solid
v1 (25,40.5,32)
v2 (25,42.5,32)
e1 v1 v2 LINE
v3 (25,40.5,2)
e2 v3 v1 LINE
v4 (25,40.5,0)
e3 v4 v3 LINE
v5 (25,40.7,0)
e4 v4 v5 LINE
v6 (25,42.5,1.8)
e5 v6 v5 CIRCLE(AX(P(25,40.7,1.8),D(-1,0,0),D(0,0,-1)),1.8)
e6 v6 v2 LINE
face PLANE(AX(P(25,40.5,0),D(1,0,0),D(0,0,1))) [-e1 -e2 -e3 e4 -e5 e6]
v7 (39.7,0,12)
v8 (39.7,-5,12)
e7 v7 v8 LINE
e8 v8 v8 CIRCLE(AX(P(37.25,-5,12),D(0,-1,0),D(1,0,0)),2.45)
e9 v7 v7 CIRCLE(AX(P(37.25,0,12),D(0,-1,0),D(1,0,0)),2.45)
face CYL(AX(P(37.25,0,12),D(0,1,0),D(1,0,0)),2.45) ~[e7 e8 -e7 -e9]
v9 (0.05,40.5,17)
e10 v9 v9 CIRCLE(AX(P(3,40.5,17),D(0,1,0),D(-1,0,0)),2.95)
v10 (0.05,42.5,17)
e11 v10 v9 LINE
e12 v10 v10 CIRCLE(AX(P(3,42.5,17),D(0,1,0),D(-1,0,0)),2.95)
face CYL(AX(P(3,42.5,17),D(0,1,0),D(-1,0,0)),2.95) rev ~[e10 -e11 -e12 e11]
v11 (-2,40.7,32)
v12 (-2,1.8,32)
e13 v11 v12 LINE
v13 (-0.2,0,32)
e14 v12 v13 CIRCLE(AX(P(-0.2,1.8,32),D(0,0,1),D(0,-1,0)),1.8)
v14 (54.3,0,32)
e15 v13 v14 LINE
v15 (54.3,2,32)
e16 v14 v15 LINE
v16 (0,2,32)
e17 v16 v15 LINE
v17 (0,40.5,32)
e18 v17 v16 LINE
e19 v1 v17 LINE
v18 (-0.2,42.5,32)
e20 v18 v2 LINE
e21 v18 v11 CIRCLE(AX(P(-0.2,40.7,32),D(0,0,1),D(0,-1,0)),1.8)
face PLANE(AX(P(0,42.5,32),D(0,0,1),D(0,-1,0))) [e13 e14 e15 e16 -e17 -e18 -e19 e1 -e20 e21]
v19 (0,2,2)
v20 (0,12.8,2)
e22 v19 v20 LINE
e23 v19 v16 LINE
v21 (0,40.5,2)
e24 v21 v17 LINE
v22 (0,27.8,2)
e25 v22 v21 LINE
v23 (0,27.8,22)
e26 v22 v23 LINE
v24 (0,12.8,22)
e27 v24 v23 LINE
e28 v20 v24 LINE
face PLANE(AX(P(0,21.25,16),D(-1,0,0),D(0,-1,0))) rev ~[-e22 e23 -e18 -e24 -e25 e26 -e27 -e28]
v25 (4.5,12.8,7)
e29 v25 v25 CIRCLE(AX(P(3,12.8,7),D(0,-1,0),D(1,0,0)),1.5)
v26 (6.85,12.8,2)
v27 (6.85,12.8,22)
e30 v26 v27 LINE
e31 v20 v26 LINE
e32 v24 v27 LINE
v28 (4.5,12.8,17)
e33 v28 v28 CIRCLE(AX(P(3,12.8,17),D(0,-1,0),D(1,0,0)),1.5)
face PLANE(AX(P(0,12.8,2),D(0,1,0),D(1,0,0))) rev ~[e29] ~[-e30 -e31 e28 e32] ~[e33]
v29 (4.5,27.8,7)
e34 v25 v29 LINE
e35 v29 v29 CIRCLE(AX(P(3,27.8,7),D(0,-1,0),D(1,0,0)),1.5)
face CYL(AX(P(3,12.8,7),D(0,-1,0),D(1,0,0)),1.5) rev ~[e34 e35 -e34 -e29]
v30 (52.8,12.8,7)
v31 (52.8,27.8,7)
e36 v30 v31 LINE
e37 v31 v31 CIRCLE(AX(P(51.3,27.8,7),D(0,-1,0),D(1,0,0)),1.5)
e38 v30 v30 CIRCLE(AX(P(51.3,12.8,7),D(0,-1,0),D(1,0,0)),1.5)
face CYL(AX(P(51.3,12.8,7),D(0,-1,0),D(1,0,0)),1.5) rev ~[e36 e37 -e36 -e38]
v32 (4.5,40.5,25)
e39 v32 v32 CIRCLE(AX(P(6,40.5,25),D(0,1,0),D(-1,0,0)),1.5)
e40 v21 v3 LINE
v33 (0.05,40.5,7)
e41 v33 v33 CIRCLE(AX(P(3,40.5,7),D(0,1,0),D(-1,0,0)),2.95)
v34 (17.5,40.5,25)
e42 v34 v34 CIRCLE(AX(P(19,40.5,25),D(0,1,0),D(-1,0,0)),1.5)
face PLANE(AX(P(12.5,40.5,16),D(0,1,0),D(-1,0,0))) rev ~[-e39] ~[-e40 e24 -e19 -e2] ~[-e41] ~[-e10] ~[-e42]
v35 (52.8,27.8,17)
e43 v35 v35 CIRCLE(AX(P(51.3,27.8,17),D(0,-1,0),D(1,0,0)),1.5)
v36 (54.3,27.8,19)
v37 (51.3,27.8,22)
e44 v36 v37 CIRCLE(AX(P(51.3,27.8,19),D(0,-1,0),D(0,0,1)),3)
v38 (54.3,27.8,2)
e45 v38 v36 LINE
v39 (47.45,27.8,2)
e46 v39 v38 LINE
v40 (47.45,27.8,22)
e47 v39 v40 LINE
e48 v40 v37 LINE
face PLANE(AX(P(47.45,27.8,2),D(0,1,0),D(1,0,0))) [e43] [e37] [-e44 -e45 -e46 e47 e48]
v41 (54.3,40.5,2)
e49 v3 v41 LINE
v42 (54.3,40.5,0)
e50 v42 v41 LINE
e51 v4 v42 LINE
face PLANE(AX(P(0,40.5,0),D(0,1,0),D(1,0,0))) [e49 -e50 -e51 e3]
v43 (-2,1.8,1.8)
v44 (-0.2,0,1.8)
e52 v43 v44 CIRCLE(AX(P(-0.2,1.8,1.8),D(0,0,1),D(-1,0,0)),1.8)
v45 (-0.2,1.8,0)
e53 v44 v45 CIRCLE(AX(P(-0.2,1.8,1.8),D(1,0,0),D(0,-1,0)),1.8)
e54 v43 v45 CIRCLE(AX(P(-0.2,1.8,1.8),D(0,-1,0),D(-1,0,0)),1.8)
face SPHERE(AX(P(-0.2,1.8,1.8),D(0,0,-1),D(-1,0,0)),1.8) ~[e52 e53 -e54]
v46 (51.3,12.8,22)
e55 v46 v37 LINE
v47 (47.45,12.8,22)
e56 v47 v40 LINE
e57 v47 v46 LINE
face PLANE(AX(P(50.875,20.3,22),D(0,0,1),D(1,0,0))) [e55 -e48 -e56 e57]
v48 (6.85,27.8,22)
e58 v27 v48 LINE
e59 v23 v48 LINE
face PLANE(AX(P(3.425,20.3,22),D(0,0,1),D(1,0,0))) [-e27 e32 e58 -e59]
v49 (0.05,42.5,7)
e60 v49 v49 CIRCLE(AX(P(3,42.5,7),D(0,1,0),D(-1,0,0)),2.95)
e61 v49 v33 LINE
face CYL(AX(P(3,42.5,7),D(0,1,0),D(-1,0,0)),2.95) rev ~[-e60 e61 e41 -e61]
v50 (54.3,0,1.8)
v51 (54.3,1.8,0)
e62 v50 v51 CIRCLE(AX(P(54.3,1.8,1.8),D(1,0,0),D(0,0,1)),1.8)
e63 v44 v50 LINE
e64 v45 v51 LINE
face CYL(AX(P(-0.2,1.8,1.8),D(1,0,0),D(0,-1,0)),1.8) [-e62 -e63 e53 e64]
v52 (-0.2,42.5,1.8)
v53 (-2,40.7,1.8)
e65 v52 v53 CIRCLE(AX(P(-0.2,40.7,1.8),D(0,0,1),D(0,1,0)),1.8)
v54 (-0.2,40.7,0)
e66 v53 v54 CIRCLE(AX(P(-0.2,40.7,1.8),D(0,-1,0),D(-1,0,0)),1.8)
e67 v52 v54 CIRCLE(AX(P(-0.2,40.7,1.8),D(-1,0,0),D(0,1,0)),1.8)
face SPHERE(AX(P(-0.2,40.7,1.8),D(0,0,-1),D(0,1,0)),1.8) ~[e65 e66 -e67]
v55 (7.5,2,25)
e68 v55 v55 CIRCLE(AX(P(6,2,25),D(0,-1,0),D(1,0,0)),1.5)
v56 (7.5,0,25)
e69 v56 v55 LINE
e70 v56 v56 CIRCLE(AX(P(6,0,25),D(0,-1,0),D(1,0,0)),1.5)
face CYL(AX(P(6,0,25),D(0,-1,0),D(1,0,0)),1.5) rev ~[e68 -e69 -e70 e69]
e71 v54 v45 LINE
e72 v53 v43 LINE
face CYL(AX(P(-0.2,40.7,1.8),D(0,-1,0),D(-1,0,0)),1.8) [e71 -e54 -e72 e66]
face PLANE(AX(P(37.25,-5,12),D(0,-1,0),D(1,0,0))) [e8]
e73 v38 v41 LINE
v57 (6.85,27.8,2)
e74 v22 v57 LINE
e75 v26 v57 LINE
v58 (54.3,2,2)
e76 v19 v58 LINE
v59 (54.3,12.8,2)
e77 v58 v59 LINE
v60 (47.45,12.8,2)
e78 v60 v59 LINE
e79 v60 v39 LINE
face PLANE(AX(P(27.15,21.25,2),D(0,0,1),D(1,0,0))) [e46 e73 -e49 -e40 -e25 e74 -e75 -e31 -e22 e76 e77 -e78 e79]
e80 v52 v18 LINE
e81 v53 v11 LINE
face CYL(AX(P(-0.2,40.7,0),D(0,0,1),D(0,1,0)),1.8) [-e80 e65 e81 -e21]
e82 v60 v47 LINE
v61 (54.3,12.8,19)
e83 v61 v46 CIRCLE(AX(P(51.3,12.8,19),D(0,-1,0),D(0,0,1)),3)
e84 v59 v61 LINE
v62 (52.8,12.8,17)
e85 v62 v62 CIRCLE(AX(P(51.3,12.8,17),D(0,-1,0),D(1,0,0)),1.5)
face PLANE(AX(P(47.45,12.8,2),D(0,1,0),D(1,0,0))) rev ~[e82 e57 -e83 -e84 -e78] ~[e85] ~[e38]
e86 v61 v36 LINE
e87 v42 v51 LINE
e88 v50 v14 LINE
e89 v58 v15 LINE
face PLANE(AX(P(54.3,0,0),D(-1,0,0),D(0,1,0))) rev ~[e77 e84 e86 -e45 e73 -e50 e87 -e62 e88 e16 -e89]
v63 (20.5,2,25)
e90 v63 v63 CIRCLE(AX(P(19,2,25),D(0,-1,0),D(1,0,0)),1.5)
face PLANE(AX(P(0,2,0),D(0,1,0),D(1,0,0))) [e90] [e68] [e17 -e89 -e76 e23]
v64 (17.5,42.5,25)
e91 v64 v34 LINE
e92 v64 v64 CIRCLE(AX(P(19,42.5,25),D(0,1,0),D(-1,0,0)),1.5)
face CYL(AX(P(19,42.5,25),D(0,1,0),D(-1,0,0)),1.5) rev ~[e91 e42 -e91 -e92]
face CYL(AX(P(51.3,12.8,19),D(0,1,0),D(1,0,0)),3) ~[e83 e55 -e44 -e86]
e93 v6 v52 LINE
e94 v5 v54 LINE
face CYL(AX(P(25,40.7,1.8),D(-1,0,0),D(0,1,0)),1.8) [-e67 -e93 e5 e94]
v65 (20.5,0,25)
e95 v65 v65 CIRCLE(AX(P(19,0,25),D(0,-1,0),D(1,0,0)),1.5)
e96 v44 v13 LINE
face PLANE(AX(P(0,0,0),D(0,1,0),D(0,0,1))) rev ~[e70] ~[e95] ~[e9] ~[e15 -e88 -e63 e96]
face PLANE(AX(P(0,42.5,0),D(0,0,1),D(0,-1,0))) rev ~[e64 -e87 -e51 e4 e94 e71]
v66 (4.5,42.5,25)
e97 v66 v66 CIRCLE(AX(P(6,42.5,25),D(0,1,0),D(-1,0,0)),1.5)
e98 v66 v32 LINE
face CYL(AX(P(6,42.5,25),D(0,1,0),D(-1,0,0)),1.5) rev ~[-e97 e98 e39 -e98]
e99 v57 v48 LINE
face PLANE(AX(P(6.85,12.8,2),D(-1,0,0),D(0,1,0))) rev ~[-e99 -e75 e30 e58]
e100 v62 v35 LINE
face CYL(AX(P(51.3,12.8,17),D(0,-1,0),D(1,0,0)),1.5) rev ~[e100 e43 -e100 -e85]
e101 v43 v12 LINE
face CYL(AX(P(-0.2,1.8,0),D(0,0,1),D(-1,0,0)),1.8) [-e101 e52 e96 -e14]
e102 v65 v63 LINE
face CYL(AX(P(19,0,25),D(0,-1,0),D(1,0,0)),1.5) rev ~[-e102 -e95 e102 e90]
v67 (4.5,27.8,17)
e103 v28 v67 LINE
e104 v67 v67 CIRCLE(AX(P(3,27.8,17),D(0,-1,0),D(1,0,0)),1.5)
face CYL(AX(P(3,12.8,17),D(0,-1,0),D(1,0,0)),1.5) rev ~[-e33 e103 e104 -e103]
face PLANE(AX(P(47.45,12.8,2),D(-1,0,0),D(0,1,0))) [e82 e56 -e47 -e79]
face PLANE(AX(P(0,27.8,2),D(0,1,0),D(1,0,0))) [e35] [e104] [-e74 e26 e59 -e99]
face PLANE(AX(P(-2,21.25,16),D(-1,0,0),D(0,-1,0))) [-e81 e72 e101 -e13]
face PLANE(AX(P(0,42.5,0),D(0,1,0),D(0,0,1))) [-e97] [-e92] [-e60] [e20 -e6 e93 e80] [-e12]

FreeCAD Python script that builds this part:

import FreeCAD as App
import Part
import Sketcher
from FreeCAD import Vector
Q = App.Units.Quantity


def edges_at(feature, points):
    """Names of the edges that pass closest to the given points."""
    edges = feature.Shape.Edges
    near = lambda p: min(range(len(edges)), key=lambda i: edges[i].distToShape(Part.Vertex(*p))[0])
    return sorted({f"Edge{near(p) + 1}" for p in points})


def add_polygon(sketch, points):
    """Adds a closed chain of lines whose ends are joined by coincident constraints."""
    first, n = sketch.GeometryCount, len(points)
    for a, b in zip(points, points[1:] + points[:1]):
        sketch.addGeometry(Part.LineSegment(App.Vector(*a, 0), App.Vector(*b, 0)), False)
    for i in range(n):
        sketch.addConstraint(Sketcher.Constraint("Coincident", first + i, 2, first + (i + 1) % n, 1))

doc = App.newDocument("Part")
params = doc.addObject("Spreadsheet::Sheet", "Params")
for row, (alias, value) in enumerate([
    ("sketch1_width", "54.3 mm"),
    ("sketch1_height", "38.5 mm"),
    ("pad1_length", "2 mm"),
    ("sketch2_height", "15 mm"),
    ("sketch2_width", "6.85 mm"),
    ("pad2_length", "20 mm"),
    ("sketch3_height", "2 mm"),
    ("sketch3_width", "54.3 mm"),
    ("pad3_length", "32 mm"),
    ("sketch4_height", "15 mm"),
    ("sketch4_width", "6.85 mm"),
    ("pad4_length", "20 mm"),
    ("sketch5_diameter", "4.9 mm"),
    ("pad5_length", "5 mm"),
    ("sketch6_width", "25 mm"),
    ("sketch6_height", "32 mm"),
    ("pad6_length", "2 mm"),
    ("sketch7_diameter", "3 mm"),
    ("pocket1_length", "15 mm"),
    ("sketch8_diameter", "3 mm"),
    ("pocket2_length", "20 mm"),
    ("sketch9_diameter", "3 mm"),
    ("sketch9_diameter2", "5.9 mm"),
    ("pocket3_length", "2 mm"),
    ("sketch10_diameter", "3 mm"),
    ("pocket4_length", "3 mm"),
    ("sketch11_height", "32 mm"),
    ("sketch11_width", "42.5 mm"),
    ("pad7_length", "2 mm"),
    ("fillet_radius", "1.8 mm"),
    ("fillet2_radius", "1.8 mm"),
    ("fillet3_radius", "1.8 mm"),
    ("fillet4_radius", "3 mm"),
], start=1):
    params.set(f"A{row}", alias)
    params.set(f"B{row}", "=" + value)
    params.setAlias(f"B{row}", alias)

body = doc.addObject("PartDesign::Body", "Body")

# Sketch on XY plane
sketch1 = body.newObject("Sketcher::SketchObject", "Sketch")
sketch1.AttachmentSupport = (doc.getObject("XY_Plane"), [""])
sketch1.MapMode = "FlatFace"
add_polygon(sketch1, [(0, 40), (0, 2), (54, 2), (54, 40)])  # lines 0-3
sketch1.addConstraint([
    Sketcher.Constraint("Vertical", 0),
    Sketcher.Constraint("Horizontal", 1),
    Sketcher.Constraint("Vertical", 2),
    Sketcher.Constraint("Horizontal", 3),
    Sketcher.Constraint("PointOnObject", 0, 2, -2),
    Sketcher.Constraint("DistanceX", 1, 1, 1, 2, Q("54.3 mm")),
    Sketcher.Constraint("DistanceY", 0, 2, 0, 1, Q("38.5 mm")),
    Sketcher.Constraint("DistanceY", -1, 1, 0, 2, Q("2 mm")),
])
sketch1.setExpression("Constraints[9]", "Params.sketch1_width")
sketch1.setExpression("Constraints[10]", "Params.sketch1_height")
pad1 = body.newObject("PartDesign::Pad", "Pad")
pad1.Profile = sketch1
pad1.setExpression("Length", "Params.pad1_length")

# Sketch on XY plane
sketch2 = body.newObject("Sketcher::SketchObject", "Sketch001")
sketch2.AttachmentSupport = (doc.getObject("XY_Plane"), [""])
sketch2.MapMode = "FlatFace"
sketch2.AttachmentOffset = App.Placement(Vector(0, 0, 2), App.Rotation())
add_polygon(sketch2, [(0, 28), (0, 13), (7, 13), (7, 28)])  # lines 0-3
sketch2.addConstraint([
    Sketcher.Constraint("Vertical", 0),
    Sketcher.Constraint("Horizontal", 1),
    Sketcher.Constraint("Vertical", 2),
    Sketcher.Constraint("Horizontal", 3),
    Sketcher.Constraint("PointOnObject", 0, 2, -2),
    Sketcher.Constraint("DistanceY", 0, 2, 0, 1, Q("15 mm")),
    Sketcher.Constraint("DistanceX", 1, 1, 1, 2, Q("6.85 mm")),
    Sketcher.Constraint("DistanceY", -1, 1, 0, 2, Q("12.8 mm")),
])
sketch2.setExpression("Constraints[9]", "Params.sketch2_height")
sketch2.setExpression("Constraints[10]", "Params.sketch2_width")
pad2 = body.newObject("PartDesign::Pad", "Pad001")
pad2.Profile = sketch2
pad2.setExpression("Length", "Params.pad2_length")

# Sketch on XY plane
sketch3 = body.newObject("Sketcher::SketchObject", "Sketch002")
sketch3.AttachmentSupport = (doc.getObject("XY_Plane"), [""])
sketch3.MapMode = "FlatFace"
add_polygon(sketch3, [(0, 2), (0, 0), (54.3, 0), (54.3, 2)])  # lines 0-3
sketch3.addConstraint([
    Sketcher.Constraint("Vertical", 0),
    Sketcher.Constraint("Horizontal", 1),
    Sketcher.Constraint("Vertical", 2),
    Sketcher.Constraint("Horizontal", 3),
    Sketcher.Constraint("Coincident", 0, 2, -1, 1),
    Sketcher.Constraint("DistanceY", 0, 2, 0, 1, Q("2 mm")),
    Sketcher.Constraint("DistanceX", 1, 1, 1, 2, Q("54.3 mm")),
])
sketch3.setExpression("Constraints[9]", "Params.sketch3_height")
sketch3.setExpression("Constraints[10]", "Params.sketch3_width")
pad3 = body.newObject("PartDesign::Pad", "Pad002")
pad3.Profile = sketch3
pad3.setExpression("Length", "Params.pad3_length")

# Sketch on XY plane
sketch4 = body.newObject("Sketcher::SketchObject", "Sketch003")
sketch4.AttachmentSupport = (doc.getObject("XY_Plane"), [""])
sketch4.MapMode = "FlatFace"
sketch4.AttachmentOffset = App.Placement(Vector(0, 0, 2), App.Rotation())
add_polygon(sketch4, [(47, 28), (47, 13), (54, 13), (54, 28)])  # lines 0-3
sketch4.addConstraint([
    Sketcher.Constraint("Vertical", 0),
    Sketcher.Constraint("Horizontal", 1),
    Sketcher.Constraint("Vertical", 2),
    Sketcher.Constraint("Horizontal", 3),
    Sketcher.Constraint("DistanceY", 0, 2, 0, 1, Q("15 mm")),
    Sketcher.Constraint("DistanceX", 1, 1, 1, 2, Q("6.85 mm")),
    Sketcher.Constraint("DistanceY", -1, 1, 0, 2, Q("12.8 mm")),
    Sketcher.Constraint("DistanceX", -1, 1, 1, 2, Q("54.3 mm")),
])
sketch4.setExpression("Constraints[8]", "Params.sketch4_height")
sketch4.setExpression("Constraints[9]", "Params.sketch4_width")
pad4 = body.newObject("PartDesign::Pad", "Pad003")
pad4.Profile = sketch4
pad4.setExpression("Length", "Params.pad4_length")

# Sketch on XZ plane
sketch5 = body.newObject("Sketcher::SketchObject", "Sketch004")
sketch5.AttachmentSupport = (doc.getObject("XZ_Plane"), [""])
sketch5.MapMode = "FlatFace"
sketch5.addGeometry(Part.Circle(Vector(37.2, 12, 0), Vector(0, 0, 1), 2.5), False)
sketch5.addConstraint([
    Sketcher.Constraint("Diameter", 0, Q("4.9 mm")),
    Sketcher.Constraint("DistanceY", -1, 1, 0, 3, Q("12 mm")),
    Sketcher.Constraint("DistanceX", -1, 1, 0, 3, Q("37.25 mm")),
])
sketch5.setExpression("Constraints[0]", "Params.sketch5_diameter")
pad5 = body.newObject("PartDesign::Pad", "Pad004")
pad5.Profile = sketch5
pad5.setExpression("Length", "Params.pad5_length")

# Sketch on XZ plane
sketch6 = body.newObject("Sketcher::SketchObject", "Sketch005")
sketch6.AttachmentSupport = (doc.getObject("XZ_Plane"), [""])
sketch6.MapMode = "FlatFace"
sketch6.AttachmentOffset = App.Placement(Vector(0, 0, -40.5), App.Rotation())
add_polygon(sketch6, [(25, 32), (25, 0), (0, 0), (0, 32)])  # lines 0-3
sketch6.addConstraint([
    Sketcher.Constraint("Vertical", 0),
    Sketcher.Constraint("Horizontal", 1),
    Sketcher.Constraint("Vertical", 2),
    Sketcher.Constraint("Horizontal", 3),
    Sketcher.Constraint("Coincident", 1, 2, -1, 1),
    Sketcher.Constraint("DistanceX", 1, 2, 1, 1, Q("25 mm")),
    Sketcher.Constraint("DistanceY", 0, 2, 0, 1, Q("32 mm")),
])
sketch6.setExpression("Constraints[9]", "Params.sketch6_width")
sketch6.setExpression("Constraints[10]", "Params.sketch6_height")
pad6 = body.newObject("PartDesign::Pad", "Pad005")
pad6.Profile = sketch6
pad6.setExpression("Length", "Params.pad6_length")
pad6.Reversed = True

# Sketch on XZ plane
sketch7 = body.newObject("Sketcher::SketchObject", "Sketch006")
sketch7.AttachmentSupport = (doc.getObject("XZ_Plane"), [""])
sketch7.MapMode = "FlatFace"
sketch7.AttachmentOffset = App.Placement(Vector(0, 0, -12.8), App.Rotation())
sketch7.addGeometry([
    Part.Circle(Vector(51.3, 17, 0), Vector(0, 0, 1), 1.5),
    Part.Circle(Vector(51.3, 7, 0), Vector(0, 0, 1), 1.5),
], False)
sketch7.addConstraint([
    Sketcher.Constraint("Equal", 0, 1),
    Sketcher.Constraint("Vertical", 0, 3, 1, 3),
    Sketcher.Constraint("Diameter", 0, Q("3 mm")),
    Sketcher.Constraint("DistanceY", -1, 1, 0, 3, Q("17 mm")),
    Sketcher.Constraint("DistanceY", -1, 1, 1, 3, Q("7 mm")),
    Sketcher.Constraint("DistanceX", -1, 1, 0, 3, Q("51.3 mm")),
])
sketch7.setExpression("Constraints[2]", "Params.sketch7_diameter")
pocket1 = body.newObject("PartDesign::Pocket", "Pocket")
pocket1.Profile = sketch7
pocket1.setExpression("Length", "Params.pocket1_length")

# Sketch on XZ plane
sketch8 = body.newObject("Sketcher::SketchObject", "Sketch007")
sketch8.AttachmentSupport = (doc.getObject("XZ_Plane"), [""])
sketch8.MapMode = "FlatFace"
sketch8.AttachmentOffset = App.Placement(Vector(0, 0, -12.8), App.Rotation())
sketch8.addGeometry([
    Part.Circle(Vector(3, 17, 0), Vector(0, 0, 1), 1.5),
    Part.Circle(Vector(3, 7, 0), Vector(0, 0, 1), 1.5),
], False)
sketch8.addConstraint([
    Sketcher.Constraint("Equal", 0, 1),
    Sketcher.Constraint("Vertical", 0, 3, 1, 3),
    Sketcher.Constraint("Diameter", 0, Q("3 mm")),
    Sketcher.Constraint("DistanceX", -1, 1, 0, 3, Q("3 mm")),
    Sketcher.Constraint("DistanceY", -1, 1, 0, 3, Q("17 mm")),
    Sketcher.Constraint("DistanceY", -1, 1, 1, 3, Q("7 mm")),
])
sketch8.setExpression("Constraints[2]", "Params.sketch8_diameter")
pocket2 = body.newObject("PartDesign::Pocket", "Pocket001")
pocket2.Profile = sketch8
pocket2.setExpression("Length", "Params.pocket2_length")

# Sketch on XZ plane
sketch9 = body.newObject("Sketcher::SketchObject", "Sketch008")
sketch9.AttachmentSupport = (doc.getObject("XZ_Plane"), [""])
sketch9.MapMode = "FlatFace"
sketch9.AttachmentOffset = App.Placement(Vector(0, 0, -42.5), App.Rotation())
sketch9.addGeometry([
    Part.Circle(Vector(6, 25, 0), Vector(0, 0, 1), 1.5),
    Part.Circle(Vector(19, 25, 0), Vector(0, 0, 1), 1.5),
    Part.Circle(Vector(3, 7, 0), Vector(0, 0, 1), 3),
    Part.Circle(Vector(3, 17, 0), Vector(0, 0, 1), 3),
], False)
sketch9.addConstraint([
    Sketcher.Constraint("Equal", 0, 1),
    Sketcher.Constraint("Equal", 2, 3),
    Sketcher.Constraint("Horizontal", 0, 3, 1, 3),
    Sketcher.Constraint("Vertical", 2, 3, 3, 3),
    Sketcher.Constraint("Diameter", 0, Q("3 mm")),
    Sketcher.Constraint("Diameter", 2, Q("5.9 mm")),
    Sketcher.Constraint("DistanceX", -1, 1, 0, 3, Q("6 mm")),
    Sketcher.Constraint("DistanceY", -1, 1, 0, 3, Q("25 mm")),
    Sketcher.Constraint("DistanceX", -1, 1, 1, 3, Q("19 mm")),
    Sketcher.Constraint("DistanceX", -1, 1, 2, 3, Q("3 mm")),
    Sketcher.Constraint("DistanceY", -1, 1, 2, 3, Q("7 mm")),
    Sketcher.Constraint("DistanceY", -1, 1, 3, 3, Q("17 mm")),
])
sketch9.setExpression("Constraints[4]", "Params.sketch9_diameter")
sketch9.setExpression("Constraints[5]", "Params.sketch9_diameter2")
pocket3 = body.newObject("PartDesign::Pocket", "Pocket002")
pocket3.Profile = sketch9
pocket3.setExpression("Length", "Params.pocket3_length")
pocket3.Reversed = True

# Sketch on XZ plane
sketch10 = body.newObject("Sketcher::SketchObject", "Sketch009")
sketch10.AttachmentSupport = (doc.getObject("XZ_Plane"), [""])
sketch10.MapMode = "FlatFace"
sketch10.addGeometry([
    Part.Circle(Vector(19, 25, 0), Vector(0, 0, 1), 1.5),
    Part.Circle(Vector(6, 25, 0), Vector(0, 0, 1), 1.5),
], False)
sketch10.addConstraint([
    Sketcher.Constraint("Equal", 0, 1),
    Sketcher.Constraint("Horizontal", 0, 3, 1, 3),
    Sketcher.Constraint("Diameter", 0, Q("3 mm")),
    Sketcher.Constraint("DistanceX", -1, 1, 0, 3, Q("19 mm")),
    Sketcher.Constraint("DistanceY", -1, 1, 0, 3, Q("25 mm")),
    Sketcher.Constraint("DistanceX", -1, 1, 1, 3, Q("6 mm")),
])
sketch10.setExpression("Constraints[2]", "Params.sketch10_diameter")
pocket4 = body.newObject("PartDesign::Pocket", "Pocket003")
pocket4.Profile = sketch10
pocket4.setExpression("Length", "Params.pocket4_length")

# Sketch on YZ plane
sketch11 = body.newObject("Sketcher::SketchObject", "Sketch010")
sketch11.AttachmentSupport = (doc.getObject("YZ_Plane"), [""])
sketch11.MapMode = "FlatFace"
add_polygon(sketch11, [(42, 32), (42, 0), (0, 0), (0, 32)])  # lines 0-3
sketch11.addConstraint([
    Sketcher.Constraint("Vertical", 0),
    Sketcher.Constraint("Horizontal", 1),
    Sketcher.Constraint("Vertical", 2),
    Sketcher.Constraint("Horizontal", 3),
    Sketcher.Constraint("Coincident", 1, 2, -1, 1),
    Sketcher.Constraint("DistanceY", 0, 2, 0, 1, Q("32 mm")),
    Sketcher.Constraint("DistanceX", 1, 2, 1, 1, Q("42.5 mm")),
])
sketch11.setExpression("Constraints[9]", "Params.sketch11_height")
sketch11.setExpression("Constraints[10]", "Params.sketch11_width")
pad7 = body.newObject("PartDesign::Pad", "Pad006")
pad7.Profile = sketch11
pad7.setExpression("Length", "Params.pad7_length")
pad7.Reversed = True
doc.recompute()

fillet = body.newObject("PartDesign::Fillet", "Fillet")
fillet.Base = (pad7, edges_at(pad7, [(-2, 42.5, 16)]))
fillet.setExpression("Radius", "Params.fillet_radius")
doc.recompute()

fillet2 = body.newObject("PartDesign::Fillet", "Fillet001")
fillet2.Base = (fillet, edges_at(fillet, [(-2, 0, 16)]))
fillet2.setExpression("Radius", "Params.fillet2_radius")
doc.recompute()

fillet3 = body.newObject("PartDesign::Fillet", "Fillet002")
fillet3.Base = (fillet2, edges_at(fillet2, [(-2, 21.25, 0)]))
fillet3.setExpression("Radius", "Params.fillet3_radius")
doc.recompute()

fillet4 = body.newObject("PartDesign::Fillet", "Fillet003")
fillet4.Base = (fillet3, edges_at(fillet3, [(54.3, 20.3, 22)]))
fillet4.setExpression("Radius", "Params.fillet4_radius")

doc.recompute()
